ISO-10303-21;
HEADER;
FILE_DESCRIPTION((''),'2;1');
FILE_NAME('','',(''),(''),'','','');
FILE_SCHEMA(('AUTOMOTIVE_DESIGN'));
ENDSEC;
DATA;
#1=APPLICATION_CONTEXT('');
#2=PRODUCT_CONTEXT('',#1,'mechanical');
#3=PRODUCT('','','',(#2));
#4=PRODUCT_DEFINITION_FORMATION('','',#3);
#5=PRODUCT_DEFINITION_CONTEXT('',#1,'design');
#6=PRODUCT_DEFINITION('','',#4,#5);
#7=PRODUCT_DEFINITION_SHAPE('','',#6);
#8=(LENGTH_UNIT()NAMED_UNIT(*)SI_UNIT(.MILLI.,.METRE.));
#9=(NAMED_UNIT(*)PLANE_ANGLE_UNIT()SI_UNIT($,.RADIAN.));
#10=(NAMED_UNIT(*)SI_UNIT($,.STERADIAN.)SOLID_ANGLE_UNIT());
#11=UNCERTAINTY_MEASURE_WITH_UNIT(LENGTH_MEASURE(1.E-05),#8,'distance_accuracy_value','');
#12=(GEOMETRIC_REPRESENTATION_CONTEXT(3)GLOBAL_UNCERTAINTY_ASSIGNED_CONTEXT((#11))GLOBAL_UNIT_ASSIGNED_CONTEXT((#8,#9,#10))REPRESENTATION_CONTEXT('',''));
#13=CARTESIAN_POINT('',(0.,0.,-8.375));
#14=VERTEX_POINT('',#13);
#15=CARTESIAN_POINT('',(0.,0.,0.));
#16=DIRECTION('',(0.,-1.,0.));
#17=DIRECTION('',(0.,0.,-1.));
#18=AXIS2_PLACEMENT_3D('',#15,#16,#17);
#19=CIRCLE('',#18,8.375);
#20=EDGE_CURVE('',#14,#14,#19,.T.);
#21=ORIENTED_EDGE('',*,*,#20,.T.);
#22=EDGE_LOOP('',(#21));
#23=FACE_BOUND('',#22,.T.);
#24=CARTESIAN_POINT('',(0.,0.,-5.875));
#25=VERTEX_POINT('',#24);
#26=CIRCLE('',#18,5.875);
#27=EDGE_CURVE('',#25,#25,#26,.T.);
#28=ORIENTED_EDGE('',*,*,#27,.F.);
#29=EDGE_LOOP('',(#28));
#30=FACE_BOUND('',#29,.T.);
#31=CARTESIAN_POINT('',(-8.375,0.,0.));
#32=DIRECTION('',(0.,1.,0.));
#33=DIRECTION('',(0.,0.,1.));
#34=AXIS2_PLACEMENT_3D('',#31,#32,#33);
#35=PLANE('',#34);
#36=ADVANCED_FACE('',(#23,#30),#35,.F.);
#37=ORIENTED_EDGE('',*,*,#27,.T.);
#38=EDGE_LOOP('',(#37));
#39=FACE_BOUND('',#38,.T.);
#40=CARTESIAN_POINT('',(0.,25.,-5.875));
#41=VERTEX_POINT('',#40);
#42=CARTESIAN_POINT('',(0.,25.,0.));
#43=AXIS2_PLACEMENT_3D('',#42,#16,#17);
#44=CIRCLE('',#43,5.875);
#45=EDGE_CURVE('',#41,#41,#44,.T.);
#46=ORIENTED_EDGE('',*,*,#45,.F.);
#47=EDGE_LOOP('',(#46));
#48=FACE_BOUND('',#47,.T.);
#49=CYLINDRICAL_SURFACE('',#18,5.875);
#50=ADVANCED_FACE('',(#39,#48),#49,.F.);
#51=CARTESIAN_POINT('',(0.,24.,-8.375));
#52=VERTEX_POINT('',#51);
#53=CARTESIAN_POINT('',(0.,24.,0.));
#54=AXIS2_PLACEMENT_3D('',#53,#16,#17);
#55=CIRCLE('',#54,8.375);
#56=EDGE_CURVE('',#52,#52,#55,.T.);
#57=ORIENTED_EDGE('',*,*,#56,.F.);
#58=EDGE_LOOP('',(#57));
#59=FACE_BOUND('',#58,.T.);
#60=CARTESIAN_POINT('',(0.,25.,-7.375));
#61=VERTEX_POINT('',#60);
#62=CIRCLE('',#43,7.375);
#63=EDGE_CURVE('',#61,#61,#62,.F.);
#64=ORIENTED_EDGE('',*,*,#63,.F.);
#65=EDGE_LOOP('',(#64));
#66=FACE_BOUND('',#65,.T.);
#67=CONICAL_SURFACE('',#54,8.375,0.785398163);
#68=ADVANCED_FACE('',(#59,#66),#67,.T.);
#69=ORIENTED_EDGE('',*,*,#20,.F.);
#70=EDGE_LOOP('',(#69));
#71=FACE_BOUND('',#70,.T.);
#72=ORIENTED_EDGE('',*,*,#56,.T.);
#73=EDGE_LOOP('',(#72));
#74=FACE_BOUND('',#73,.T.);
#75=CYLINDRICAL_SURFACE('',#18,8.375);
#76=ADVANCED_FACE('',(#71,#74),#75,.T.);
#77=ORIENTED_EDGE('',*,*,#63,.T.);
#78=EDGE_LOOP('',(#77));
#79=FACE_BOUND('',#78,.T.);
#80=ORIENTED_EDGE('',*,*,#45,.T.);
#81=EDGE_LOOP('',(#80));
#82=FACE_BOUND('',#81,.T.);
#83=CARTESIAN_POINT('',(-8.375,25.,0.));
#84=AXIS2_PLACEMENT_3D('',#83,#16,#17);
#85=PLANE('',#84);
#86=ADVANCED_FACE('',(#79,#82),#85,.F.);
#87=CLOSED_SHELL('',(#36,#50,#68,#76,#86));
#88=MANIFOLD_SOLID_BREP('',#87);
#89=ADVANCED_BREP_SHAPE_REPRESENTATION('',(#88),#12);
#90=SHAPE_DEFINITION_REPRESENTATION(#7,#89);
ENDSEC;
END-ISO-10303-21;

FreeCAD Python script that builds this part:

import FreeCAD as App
import Part
import Sketcher

V = App.Vector
Q = App.Units.Quantity


def edges_at(feature, points):
    """Names of the edges that pass closest to the given points."""
    edges = feature.Shape.Edges
    near = lambda p: min(range(len(edges)), key=lambda i: edges[i].distToShape(Part.Vertex(*p))[0])
    return sorted({f"Edge{near(p) + 1}" for p in points})


def add_polygon(sketch, points):
    """Adds a closed chain of lines whose ends are joined by coincident constraints."""
    first, n = sketch.GeometryCount, len(points)
    for a, b in zip(points, points[1:] + points[:1]):
        sketch.addGeometry(Part.LineSegment(App.Vector(*a, 0), App.Vector(*b, 0)), False)
    for i in range(n):
        sketch.addConstraint(Sketcher.Constraint("Coincident", first + i, 2, first + (i + 1) % n, 1))

doc = App.newDocument("Part")
body = doc.addObject("PartDesign::Body", "Body")

# Sketch on XY plane
sketch1 = body.newObject("Sketcher::SketchObject", "Sketch")
sketch1.AttachmentSupport = (doc.getObject("XY_Plane"), [""])
sketch1.MapMode = "FlatFace"
add_polygon(sketch1, [(-8.4, 25), (-8.4, 0), (-5.9, 0), (-5.9, 25)])  # lines 0-3
sketch1.addConstraint([
    Sketcher.Constraint("Vertical", 0),
    Sketcher.Constraint("Horizontal", 1),
    Sketcher.Constraint("Vertical", 2),
    Sketcher.Constraint("Horizontal", 3),
    Sketcher.Constraint("PointOnObject", 0, 2, -1),
    Sketcher.Constraint("DistanceY", 0, 2, 0, 1, Q("25 mm")),
    Sketcher.Constraint("DistanceX", 1, 1, 1, 2, Q("2.5 mm")),
    Sketcher.Constraint("DistanceX", 0, 2, -1, 1, Q("8.375 mm")),
])
revolution = body.newObject("PartDesign::Revolution", "Revolution")
revolution.Profile = sketch1
revolution.ReferenceAxis = (sketch1, ["V_Axis"])
revolution.Angle = 360
doc.recompute()

chamfer = body.newObject("PartDesign::Chamfer", "Chamfer")
chamfer.Base = (revolution, edges_at(revolution, [(8.375, 25, 0)]))
chamfer.Size = 1

doc.recompute()
